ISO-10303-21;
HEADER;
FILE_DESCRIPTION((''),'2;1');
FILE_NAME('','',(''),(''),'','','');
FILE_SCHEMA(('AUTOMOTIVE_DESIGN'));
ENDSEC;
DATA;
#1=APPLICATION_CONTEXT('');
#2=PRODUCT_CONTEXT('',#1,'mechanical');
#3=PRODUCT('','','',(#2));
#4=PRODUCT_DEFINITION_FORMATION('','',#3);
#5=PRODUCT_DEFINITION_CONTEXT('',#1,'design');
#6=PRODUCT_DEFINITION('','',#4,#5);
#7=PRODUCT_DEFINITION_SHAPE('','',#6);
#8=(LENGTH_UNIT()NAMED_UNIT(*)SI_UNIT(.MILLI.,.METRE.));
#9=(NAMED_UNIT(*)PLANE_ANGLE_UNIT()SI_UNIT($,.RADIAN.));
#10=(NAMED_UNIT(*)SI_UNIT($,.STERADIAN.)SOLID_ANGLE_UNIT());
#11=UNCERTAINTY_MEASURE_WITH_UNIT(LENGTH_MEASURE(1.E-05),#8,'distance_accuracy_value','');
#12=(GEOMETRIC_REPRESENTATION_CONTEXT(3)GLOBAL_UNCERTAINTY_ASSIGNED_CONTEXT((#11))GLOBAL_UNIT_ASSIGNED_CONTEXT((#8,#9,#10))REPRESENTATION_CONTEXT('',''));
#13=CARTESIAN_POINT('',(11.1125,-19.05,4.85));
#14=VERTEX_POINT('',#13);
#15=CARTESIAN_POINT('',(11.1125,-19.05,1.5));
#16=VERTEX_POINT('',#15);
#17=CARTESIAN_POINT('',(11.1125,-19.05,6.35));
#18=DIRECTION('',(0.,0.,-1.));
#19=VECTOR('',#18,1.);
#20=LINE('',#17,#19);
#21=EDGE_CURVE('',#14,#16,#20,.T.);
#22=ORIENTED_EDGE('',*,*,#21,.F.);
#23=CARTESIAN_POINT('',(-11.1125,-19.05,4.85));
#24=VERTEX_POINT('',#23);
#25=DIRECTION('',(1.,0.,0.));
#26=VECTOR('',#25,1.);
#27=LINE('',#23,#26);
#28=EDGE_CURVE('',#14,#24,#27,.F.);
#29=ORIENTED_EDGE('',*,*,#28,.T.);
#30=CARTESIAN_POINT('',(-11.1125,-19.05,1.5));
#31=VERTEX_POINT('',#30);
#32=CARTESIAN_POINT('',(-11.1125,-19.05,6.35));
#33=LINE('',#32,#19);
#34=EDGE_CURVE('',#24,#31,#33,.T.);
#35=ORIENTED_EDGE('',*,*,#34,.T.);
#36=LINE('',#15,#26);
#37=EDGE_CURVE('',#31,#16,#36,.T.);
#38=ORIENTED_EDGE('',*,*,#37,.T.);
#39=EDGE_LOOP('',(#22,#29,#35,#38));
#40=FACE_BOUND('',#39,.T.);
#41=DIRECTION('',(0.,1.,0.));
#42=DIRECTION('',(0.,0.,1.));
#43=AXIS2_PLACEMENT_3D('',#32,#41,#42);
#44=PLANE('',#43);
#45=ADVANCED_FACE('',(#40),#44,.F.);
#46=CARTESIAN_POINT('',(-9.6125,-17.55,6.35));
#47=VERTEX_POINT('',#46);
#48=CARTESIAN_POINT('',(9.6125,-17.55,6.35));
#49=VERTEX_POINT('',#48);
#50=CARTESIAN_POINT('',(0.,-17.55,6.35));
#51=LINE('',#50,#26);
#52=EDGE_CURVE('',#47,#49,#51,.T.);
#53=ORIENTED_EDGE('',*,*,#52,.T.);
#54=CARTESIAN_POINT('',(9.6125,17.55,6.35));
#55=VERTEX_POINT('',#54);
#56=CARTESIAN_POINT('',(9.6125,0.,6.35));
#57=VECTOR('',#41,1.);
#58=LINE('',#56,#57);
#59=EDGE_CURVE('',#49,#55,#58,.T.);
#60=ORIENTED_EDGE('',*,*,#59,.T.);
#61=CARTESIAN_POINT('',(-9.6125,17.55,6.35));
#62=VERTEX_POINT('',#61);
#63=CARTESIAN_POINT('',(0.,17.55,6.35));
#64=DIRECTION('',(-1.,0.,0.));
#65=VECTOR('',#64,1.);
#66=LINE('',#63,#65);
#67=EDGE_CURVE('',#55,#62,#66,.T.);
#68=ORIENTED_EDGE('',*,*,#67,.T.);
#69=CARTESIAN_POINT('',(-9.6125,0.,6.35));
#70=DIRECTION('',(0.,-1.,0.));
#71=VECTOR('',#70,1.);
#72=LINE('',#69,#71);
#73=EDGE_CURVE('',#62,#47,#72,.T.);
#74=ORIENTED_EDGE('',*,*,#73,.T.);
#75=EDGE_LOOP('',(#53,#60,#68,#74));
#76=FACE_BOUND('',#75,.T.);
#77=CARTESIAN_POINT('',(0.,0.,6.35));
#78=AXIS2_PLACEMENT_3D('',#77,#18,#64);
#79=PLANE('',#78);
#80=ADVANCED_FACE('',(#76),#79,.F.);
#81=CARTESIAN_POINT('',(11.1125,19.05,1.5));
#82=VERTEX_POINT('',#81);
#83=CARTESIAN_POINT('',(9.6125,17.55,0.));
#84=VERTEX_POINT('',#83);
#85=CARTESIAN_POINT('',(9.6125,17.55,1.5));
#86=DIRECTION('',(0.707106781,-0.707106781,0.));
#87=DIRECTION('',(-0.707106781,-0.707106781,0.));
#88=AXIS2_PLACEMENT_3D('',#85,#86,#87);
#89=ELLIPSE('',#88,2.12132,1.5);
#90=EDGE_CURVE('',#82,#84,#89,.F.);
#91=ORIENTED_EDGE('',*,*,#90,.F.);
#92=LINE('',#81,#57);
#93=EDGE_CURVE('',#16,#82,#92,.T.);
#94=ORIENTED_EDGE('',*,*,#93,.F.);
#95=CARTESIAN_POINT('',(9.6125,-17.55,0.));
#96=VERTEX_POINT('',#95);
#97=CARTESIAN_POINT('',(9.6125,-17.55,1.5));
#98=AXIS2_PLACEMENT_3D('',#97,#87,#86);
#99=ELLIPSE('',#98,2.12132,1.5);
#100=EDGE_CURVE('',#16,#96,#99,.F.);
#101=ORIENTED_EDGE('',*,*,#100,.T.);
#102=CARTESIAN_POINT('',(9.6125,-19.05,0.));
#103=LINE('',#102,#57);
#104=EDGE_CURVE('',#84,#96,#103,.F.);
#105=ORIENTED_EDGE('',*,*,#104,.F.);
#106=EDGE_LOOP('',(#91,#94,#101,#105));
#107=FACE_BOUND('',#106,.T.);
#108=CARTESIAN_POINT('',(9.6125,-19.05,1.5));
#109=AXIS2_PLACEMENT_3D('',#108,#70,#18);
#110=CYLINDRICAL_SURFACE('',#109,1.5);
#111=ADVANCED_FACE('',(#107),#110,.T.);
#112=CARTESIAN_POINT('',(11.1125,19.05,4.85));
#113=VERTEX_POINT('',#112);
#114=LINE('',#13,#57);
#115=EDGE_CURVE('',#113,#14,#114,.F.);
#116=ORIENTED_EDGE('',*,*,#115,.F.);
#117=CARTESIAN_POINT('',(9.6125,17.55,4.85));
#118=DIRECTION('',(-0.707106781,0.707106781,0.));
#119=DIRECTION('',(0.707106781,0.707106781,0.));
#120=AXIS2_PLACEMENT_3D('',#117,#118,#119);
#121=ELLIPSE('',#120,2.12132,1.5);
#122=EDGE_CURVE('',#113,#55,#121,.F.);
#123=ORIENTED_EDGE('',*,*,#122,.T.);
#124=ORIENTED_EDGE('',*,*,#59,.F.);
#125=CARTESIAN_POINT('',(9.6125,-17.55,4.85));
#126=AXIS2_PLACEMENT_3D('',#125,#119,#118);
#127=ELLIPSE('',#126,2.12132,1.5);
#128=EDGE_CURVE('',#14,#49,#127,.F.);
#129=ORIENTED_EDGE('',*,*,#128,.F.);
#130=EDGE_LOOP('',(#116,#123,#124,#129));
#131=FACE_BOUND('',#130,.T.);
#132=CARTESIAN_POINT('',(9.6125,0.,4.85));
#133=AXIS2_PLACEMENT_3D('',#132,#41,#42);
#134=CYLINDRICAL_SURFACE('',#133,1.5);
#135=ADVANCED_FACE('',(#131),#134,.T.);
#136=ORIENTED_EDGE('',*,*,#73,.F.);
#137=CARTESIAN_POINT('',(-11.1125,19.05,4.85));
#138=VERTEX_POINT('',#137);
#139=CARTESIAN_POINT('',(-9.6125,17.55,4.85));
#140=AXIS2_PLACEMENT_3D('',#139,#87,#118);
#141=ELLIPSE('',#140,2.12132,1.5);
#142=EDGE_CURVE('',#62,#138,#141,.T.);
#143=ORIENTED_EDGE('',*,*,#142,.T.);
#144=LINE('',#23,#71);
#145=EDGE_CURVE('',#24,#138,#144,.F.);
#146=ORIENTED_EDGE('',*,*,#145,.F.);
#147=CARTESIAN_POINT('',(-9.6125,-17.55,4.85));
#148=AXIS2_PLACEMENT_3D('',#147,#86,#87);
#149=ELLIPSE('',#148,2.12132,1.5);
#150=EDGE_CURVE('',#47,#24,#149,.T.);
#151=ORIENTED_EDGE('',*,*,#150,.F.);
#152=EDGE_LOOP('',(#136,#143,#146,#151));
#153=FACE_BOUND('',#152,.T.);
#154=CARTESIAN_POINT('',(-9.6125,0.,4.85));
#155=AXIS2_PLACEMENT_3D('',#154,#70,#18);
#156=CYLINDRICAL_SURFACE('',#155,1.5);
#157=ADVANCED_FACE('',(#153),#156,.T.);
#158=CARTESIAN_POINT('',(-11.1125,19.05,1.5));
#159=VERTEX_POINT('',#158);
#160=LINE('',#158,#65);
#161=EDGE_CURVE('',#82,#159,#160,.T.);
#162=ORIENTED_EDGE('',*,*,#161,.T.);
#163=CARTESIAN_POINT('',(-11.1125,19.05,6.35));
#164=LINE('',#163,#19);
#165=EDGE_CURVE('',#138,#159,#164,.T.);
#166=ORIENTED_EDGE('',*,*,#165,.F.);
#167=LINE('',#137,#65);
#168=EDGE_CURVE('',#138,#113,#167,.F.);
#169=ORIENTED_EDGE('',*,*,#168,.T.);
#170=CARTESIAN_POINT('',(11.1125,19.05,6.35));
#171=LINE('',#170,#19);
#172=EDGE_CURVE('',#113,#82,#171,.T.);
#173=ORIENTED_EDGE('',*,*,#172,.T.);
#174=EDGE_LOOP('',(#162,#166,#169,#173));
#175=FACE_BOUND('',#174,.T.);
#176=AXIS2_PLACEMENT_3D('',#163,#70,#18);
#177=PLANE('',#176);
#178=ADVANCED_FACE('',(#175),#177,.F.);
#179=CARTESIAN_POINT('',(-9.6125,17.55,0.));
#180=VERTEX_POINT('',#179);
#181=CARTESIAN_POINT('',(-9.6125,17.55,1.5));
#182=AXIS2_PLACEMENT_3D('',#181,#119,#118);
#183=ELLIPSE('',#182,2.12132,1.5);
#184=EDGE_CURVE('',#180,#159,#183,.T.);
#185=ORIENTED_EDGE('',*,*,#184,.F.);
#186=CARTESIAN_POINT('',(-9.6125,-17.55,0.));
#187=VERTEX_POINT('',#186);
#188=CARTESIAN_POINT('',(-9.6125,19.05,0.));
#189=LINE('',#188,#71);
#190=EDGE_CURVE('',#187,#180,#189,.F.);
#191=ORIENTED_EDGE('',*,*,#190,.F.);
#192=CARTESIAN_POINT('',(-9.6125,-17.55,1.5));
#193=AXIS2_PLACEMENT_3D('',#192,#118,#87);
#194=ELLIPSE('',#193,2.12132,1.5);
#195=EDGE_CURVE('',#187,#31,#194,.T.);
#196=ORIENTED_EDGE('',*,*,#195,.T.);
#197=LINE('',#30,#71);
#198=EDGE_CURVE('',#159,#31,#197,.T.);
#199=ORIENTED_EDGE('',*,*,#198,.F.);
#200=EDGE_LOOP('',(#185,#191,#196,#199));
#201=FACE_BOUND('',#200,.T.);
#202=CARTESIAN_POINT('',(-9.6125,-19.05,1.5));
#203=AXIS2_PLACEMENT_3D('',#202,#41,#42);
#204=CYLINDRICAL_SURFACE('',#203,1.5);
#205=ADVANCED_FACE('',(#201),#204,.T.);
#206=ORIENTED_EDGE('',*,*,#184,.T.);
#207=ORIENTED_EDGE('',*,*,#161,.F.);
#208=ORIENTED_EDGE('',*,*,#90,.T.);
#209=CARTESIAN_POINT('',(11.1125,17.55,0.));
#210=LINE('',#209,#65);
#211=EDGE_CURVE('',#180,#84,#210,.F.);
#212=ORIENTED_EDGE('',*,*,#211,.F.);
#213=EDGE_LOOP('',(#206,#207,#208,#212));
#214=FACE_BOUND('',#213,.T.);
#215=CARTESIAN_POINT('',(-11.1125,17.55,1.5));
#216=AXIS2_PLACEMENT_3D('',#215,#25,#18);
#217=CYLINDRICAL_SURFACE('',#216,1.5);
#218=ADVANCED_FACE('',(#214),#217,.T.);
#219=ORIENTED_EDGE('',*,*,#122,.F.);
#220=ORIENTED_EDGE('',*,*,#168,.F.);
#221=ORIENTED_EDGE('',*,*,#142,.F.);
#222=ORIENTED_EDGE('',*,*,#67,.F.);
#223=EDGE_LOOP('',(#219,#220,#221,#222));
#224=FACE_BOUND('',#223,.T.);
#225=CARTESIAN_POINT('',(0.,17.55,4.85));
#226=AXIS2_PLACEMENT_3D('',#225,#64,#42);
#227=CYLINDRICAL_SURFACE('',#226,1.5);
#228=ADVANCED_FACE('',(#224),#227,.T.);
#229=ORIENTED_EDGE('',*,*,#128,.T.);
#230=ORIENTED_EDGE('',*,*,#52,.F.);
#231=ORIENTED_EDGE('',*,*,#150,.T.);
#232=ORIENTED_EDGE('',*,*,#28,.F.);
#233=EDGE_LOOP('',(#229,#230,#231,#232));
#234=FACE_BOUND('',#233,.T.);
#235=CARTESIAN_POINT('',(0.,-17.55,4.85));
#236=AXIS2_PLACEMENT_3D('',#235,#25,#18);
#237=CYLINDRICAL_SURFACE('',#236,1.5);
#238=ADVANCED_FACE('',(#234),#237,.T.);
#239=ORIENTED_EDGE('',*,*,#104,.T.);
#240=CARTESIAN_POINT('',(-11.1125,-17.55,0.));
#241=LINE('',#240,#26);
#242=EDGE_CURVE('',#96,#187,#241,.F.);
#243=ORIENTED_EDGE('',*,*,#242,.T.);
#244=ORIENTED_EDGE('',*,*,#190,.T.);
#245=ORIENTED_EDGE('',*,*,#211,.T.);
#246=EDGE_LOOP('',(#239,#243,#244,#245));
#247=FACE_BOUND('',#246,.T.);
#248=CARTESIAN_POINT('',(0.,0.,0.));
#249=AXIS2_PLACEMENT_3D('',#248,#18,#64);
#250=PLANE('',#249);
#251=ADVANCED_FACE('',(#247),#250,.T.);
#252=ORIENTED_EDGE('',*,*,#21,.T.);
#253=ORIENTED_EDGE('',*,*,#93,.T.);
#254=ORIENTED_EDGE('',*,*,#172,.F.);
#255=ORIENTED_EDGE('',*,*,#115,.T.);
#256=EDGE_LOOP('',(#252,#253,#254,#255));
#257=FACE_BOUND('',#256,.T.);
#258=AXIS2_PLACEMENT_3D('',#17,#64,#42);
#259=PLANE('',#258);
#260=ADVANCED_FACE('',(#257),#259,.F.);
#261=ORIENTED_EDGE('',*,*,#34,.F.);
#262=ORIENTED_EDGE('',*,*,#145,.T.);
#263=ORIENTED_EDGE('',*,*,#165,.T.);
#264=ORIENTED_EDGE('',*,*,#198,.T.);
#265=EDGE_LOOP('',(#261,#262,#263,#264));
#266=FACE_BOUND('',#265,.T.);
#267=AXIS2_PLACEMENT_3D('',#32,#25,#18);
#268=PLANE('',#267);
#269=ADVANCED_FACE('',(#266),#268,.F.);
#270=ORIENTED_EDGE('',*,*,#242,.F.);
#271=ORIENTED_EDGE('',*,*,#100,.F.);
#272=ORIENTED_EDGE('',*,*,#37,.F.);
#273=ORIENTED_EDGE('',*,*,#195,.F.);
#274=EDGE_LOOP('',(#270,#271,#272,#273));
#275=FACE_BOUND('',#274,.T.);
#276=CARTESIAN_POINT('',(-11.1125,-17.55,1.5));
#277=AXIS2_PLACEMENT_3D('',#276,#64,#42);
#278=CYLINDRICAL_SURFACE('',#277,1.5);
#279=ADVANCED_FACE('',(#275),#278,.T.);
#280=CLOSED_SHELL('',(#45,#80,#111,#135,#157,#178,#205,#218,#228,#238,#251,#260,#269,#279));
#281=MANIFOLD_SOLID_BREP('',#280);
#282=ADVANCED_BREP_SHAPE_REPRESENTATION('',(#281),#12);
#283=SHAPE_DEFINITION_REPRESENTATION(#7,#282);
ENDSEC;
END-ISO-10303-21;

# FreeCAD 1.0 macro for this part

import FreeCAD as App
import Part
import Sketcher

V = App.Vector
Q = App.Units.Quantity


def edges_at(feature, points):
    """Names of the edges that pass closest to the given points."""
    edges = feature.Shape.Edges
    near = lambda p: min(range(len(edges)), key=lambda i: edges[i].distToShape(Part.Vertex(*p))[0])
    return sorted({f"Edge{near(p) + 1}" for p in points})


def add_polygon(sketch, points):
    """Adds a closed chain of lines whose ends are joined by coincident constraints."""
    first, n = sketch.GeometryCount, len(points)
    for a, b in zip(points, points[1:] + points[:1]):
        sketch.addGeometry(Part.LineSegment(App.Vector(*a, 0), App.Vector(*b, 0)), False)
    for i in range(n):
        sketch.addConstraint(Sketcher.Constraint("Coincident", first + i, 2, first + (i + 1) % n, 1))

doc = App.newDocument("Part")
body = doc.addObject("PartDesign::Body", "Body")

# Sketch on XY plane
sketch1 = body.newObject("Sketcher::SketchObject", "Sketch")
sketch1.AttachmentSupport = (doc.getObject("XY_Plane"), [""])
sketch1.MapMode = "FlatFace"
add_polygon(sketch1, [(-11, 19), (-11, -19), (11, -19), (11, 19)])  # lines 0-3
sketch1.addConstraint(Sketcher.Constraint("Vertical", 0))
sketch1.addConstraint(Sketcher.Constraint("Horizontal", 1))
sketch1.addConstraint(Sketcher.Constraint("Vertical", 2))
sketch1.addConstraint(Sketcher.Constraint("Horizontal", 3))
sketch1.addConstraint(Sketcher.Constraint("Symmetric", 0, 2, 2, 2, -1, 1))
sketch1.addConstraint(Sketcher.Constraint("DistanceY", 0, 2, 0, 1, Q("1.5 in")))
sketch1.addConstraint(Sketcher.Constraint("DistanceX", 1, 1, 1, 2, Q("0.875 in")))
pad1 = body.newObject("PartDesign::Pad", "Pad")
pad1.Profile = sketch1
pad1.Length = Q("0.25 in")
doc.recompute()

fillet = body.newObject("PartDesign::Fillet", "Fillet")
fillet.Base = (pad1, edges_at(pad1, [
    (-11.113, 0, 6.35),
    (0, -19.05, 6.35),
    (11.113, 0, 6.35),
    (0, -19.05, 0),
    (-11.113, 0, 0),
    (0, 19.05, 0),
    (11.113, 0, 0),
    (0, 19.05, 6.35),
]))
fillet.Radius = 1.5

doc.recompute()
